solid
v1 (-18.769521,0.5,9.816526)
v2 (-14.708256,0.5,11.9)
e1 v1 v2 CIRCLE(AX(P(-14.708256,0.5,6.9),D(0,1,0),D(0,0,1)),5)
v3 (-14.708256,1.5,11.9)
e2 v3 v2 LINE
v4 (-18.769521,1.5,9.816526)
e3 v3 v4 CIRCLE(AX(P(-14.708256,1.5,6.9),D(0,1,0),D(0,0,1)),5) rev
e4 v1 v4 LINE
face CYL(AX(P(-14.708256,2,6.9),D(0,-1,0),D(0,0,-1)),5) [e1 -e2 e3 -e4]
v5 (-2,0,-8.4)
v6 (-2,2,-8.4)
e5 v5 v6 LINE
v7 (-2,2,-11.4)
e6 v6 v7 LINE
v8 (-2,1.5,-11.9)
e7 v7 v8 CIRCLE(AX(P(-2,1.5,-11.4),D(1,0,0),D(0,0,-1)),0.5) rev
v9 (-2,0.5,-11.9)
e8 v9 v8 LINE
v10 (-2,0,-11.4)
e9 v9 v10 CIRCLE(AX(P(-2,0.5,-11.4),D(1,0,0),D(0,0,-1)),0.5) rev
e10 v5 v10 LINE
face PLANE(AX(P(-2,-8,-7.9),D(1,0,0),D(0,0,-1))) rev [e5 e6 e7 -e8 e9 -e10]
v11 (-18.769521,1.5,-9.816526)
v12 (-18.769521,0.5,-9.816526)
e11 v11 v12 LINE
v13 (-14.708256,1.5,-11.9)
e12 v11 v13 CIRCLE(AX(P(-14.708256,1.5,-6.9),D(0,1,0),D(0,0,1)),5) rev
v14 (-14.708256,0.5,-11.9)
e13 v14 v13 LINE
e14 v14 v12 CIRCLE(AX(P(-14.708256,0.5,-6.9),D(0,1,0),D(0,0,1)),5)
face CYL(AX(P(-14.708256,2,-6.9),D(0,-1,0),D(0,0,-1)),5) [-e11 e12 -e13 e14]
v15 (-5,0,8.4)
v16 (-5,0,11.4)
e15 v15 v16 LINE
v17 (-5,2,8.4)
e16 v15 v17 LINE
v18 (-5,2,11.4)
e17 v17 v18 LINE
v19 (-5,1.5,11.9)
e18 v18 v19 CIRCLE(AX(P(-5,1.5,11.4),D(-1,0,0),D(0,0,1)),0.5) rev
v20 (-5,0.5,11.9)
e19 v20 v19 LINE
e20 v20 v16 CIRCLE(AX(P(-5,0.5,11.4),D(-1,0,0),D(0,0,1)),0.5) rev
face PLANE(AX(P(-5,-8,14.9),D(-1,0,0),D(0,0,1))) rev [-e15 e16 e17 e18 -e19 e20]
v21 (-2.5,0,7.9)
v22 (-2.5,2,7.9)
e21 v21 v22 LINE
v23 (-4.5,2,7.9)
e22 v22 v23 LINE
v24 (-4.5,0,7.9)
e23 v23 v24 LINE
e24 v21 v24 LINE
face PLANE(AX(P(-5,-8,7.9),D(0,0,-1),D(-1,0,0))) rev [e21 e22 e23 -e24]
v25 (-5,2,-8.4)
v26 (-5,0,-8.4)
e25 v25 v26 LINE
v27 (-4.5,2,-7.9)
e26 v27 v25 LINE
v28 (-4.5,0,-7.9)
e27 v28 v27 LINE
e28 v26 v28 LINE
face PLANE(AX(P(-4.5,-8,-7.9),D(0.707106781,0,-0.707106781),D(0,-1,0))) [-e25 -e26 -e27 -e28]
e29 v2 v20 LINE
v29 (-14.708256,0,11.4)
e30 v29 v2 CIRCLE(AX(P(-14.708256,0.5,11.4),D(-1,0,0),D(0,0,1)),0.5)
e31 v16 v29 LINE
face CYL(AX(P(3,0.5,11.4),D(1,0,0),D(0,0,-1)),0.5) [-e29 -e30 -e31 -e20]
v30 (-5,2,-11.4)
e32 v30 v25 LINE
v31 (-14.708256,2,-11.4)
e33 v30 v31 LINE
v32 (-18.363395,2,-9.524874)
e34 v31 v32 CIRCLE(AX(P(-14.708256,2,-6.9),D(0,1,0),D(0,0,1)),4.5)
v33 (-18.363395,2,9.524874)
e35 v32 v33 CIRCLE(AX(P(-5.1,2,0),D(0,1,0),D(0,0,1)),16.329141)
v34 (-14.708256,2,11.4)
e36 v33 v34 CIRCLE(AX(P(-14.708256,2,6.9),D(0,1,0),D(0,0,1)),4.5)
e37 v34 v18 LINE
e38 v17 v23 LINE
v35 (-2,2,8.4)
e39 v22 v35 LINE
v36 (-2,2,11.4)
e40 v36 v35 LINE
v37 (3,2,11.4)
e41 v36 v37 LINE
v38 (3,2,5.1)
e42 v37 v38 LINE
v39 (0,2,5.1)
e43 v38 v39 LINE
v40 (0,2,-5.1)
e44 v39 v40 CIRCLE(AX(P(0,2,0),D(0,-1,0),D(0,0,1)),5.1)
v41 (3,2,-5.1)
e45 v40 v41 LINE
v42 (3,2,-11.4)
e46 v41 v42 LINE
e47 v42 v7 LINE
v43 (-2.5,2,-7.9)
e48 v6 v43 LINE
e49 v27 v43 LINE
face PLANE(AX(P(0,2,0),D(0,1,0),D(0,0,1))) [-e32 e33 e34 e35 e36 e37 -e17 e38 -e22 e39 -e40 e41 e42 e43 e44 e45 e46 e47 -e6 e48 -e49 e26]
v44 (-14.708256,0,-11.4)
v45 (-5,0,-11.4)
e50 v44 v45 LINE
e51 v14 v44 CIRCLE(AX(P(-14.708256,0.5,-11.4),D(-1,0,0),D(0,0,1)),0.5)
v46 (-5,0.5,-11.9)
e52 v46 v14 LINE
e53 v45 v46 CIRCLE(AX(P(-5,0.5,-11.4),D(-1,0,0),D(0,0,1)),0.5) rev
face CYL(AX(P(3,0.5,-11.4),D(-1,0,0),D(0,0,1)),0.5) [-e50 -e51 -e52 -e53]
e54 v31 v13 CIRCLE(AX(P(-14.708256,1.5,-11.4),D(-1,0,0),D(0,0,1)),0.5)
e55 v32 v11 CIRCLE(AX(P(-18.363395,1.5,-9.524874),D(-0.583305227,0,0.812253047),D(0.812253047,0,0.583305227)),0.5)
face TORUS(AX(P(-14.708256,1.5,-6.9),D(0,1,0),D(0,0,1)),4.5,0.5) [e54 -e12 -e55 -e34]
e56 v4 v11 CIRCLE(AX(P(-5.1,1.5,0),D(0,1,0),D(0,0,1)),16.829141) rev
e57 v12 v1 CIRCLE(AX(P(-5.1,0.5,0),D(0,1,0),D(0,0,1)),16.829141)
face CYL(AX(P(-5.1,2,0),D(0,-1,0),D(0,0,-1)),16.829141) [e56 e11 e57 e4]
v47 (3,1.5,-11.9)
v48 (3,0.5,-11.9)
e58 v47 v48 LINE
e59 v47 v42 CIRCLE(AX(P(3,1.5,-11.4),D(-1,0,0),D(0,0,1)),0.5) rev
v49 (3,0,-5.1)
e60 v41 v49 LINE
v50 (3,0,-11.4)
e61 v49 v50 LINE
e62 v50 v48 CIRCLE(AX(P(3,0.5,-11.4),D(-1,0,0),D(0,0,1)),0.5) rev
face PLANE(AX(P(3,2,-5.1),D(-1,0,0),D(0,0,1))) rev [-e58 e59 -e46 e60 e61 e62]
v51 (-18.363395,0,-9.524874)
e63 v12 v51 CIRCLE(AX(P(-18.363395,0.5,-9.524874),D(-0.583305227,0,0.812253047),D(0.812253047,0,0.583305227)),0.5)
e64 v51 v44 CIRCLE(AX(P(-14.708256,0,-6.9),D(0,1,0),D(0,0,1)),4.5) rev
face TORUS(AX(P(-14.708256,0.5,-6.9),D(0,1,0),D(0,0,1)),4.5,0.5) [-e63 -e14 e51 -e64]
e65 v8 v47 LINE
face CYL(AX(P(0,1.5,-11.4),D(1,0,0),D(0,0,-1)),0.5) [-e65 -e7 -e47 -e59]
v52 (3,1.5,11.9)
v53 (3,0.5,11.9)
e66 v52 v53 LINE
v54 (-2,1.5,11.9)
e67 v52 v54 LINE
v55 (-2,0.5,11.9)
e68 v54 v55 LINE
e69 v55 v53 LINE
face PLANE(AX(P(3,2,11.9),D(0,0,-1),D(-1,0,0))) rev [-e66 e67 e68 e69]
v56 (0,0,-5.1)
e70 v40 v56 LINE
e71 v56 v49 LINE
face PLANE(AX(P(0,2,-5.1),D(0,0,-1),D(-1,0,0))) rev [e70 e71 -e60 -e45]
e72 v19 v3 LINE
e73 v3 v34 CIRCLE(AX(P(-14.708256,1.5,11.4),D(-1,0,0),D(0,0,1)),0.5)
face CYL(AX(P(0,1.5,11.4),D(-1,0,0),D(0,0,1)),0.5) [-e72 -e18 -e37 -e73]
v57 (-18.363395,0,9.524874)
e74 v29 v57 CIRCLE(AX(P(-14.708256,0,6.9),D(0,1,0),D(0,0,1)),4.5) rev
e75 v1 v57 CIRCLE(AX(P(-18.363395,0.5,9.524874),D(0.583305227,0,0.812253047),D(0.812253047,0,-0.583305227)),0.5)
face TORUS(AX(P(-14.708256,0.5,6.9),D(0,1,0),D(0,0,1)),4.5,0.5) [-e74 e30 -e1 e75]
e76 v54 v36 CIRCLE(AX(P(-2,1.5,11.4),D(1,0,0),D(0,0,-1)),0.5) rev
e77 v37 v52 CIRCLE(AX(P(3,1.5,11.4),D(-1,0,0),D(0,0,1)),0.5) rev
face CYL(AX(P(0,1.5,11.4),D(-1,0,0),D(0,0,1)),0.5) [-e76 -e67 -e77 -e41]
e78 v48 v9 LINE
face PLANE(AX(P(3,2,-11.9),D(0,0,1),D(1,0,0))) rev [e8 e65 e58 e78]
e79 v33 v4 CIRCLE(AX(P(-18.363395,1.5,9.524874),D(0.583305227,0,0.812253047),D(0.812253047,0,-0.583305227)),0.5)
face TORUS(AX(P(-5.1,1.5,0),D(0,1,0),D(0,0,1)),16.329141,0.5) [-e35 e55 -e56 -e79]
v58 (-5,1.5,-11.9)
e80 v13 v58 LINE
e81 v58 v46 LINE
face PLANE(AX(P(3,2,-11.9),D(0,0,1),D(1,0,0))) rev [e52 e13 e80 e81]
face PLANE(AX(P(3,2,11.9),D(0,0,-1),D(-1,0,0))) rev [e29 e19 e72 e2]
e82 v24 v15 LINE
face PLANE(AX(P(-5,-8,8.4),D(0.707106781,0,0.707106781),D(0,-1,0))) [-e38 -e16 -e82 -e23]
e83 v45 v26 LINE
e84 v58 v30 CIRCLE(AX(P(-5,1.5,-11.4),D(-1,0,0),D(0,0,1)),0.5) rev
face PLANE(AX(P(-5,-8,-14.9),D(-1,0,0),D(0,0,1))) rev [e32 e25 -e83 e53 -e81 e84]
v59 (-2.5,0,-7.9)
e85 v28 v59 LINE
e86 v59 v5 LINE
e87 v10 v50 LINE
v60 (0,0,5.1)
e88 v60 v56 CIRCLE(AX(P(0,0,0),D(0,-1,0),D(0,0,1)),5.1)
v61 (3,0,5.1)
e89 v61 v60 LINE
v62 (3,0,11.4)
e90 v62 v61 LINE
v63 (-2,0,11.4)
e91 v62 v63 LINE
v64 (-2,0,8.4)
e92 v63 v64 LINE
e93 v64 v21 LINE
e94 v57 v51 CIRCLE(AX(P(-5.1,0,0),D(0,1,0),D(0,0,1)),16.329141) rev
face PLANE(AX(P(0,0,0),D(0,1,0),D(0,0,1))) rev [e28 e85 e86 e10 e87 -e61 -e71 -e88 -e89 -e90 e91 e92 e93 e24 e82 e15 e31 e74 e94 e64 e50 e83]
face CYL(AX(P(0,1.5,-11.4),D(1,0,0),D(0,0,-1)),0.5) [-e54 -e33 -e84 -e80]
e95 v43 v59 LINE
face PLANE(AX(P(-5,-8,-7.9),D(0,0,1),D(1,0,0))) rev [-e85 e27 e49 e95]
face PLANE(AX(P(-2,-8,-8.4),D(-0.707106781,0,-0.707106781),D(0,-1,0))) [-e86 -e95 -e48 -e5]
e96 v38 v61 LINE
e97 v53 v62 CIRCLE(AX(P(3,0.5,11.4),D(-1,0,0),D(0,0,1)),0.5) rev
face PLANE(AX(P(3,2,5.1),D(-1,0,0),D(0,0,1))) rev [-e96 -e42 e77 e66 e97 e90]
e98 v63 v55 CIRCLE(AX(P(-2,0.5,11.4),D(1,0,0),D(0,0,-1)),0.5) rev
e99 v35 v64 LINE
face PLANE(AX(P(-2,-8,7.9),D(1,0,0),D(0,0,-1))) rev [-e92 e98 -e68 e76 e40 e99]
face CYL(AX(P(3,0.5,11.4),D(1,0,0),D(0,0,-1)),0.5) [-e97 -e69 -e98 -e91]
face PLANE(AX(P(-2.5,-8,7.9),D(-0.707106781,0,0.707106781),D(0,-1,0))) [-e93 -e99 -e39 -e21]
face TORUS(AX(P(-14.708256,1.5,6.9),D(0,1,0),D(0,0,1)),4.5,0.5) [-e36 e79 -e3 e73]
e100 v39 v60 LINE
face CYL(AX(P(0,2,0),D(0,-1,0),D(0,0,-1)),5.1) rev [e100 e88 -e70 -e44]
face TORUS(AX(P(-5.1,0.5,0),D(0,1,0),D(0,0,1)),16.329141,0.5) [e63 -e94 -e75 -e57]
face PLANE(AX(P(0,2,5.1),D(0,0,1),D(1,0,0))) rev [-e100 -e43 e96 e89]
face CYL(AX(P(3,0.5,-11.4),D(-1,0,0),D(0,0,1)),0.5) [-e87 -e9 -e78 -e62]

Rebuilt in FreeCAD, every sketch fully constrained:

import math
import FreeCAD as App
import Part
import Sketcher

V = App.Vector


def edges_at(feature, points):
    """Names of the edges that pass closest to the given points."""
    edges = feature.Shape.Edges
    near = lambda p: min(range(len(edges)), key=lambda i: edges[i].distToShape(Part.Vertex(*p))[0])
    return sorted({f"Edge{near(p) + 1}" for p in points})

doc = App.newDocument("Part")
body = doc.addObject("PartDesign::Body", "Body")

# Sketch on XZ plane
sketch1 = doc.addObject("Sketcher::SketchObject", "Sketch")
body.addObject(sketch1)
sketch1.AttachmentSupport = (doc.XZ_Plane, [""])
sketch1.MapMode = "FlatFace"
sketch1.addGeometry([
    Part.LineSegment(V(0, -5.1, 0), V(3, -5.1, 0)),  # 0
    Part.LineSegment(V(3, -5.1, 0), V(3, -11.9, 0)),  # 1
    Part.LineSegment(V(3, -11.9, 0), V(-17, -11.9, 0)),  # 2
    Part.ArcOfCircle(Part.Circle(V(-5.1, 0, 0), V(0, 0, 1), 16.829141), math.radians(135), math.radians(225)),  # 3
    Part.LineSegment(V(-17, 11.9, 0), V(3, 11.9, 0)),  # 4
    Part.LineSegment(V(3, 11.9, 0), V(3, 5.1, 0)),  # 5
    Part.LineSegment(V(3, 5.1, 0), V(0, 5.1, 0)),  # 6
    Part.ArcOfCircle(Part.Circle(V(0, 0, 0), V(0, 0, 1), 5.1), math.radians(90), math.radians(270)),  # 7
], False)
sketch1.addConstraint([
    Sketcher.Constraint("Coincident", 0, 2, 1, 1),
    Sketcher.Constraint("Coincident", 1, 2, 2, 1),
    Sketcher.Constraint("Coincident", 2, 2, 3, 2),
    Sketcher.Constraint("Coincident", 3, 1, 4, 1),
    Sketcher.Constraint("Coincident", 4, 2, 5, 1),
    Sketcher.Constraint("Coincident", 5, 2, 6, 1),
    Sketcher.Constraint("Tangent", 6, 2, 7, 1),
    Sketcher.Constraint("Tangent", 7, 2, 0, 1),
    Sketcher.Constraint("Horizontal", 0),
    Sketcher.Constraint("Vertical", 1),
    Sketcher.Constraint("Horizontal", 2),
    Sketcher.Constraint("Horizontal", 4),
    Sketcher.Constraint("Vertical", 5),
    Sketcher.Constraint("Horizontal", 6),
    Sketcher.Constraint("Coincident", 7, 3, -1, 1),
    Sketcher.Constraint("Symmetric", 2, 2, 3, 1, -1),
    Sketcher.Constraint("Vertical", 1, 2, 4, 2),
    Sketcher.Constraint("Radius", 7, 5.1),
    Sketcher.Constraint("DistanceX", 0, 1, 0, 2, 3.0),
    Sketcher.Constraint("DistanceX", 2, 2, 2, 1, 20.0),
    Sketcher.Constraint("DistanceY", 1, 2, 1, 1, 6.8),
    Sketcher.Constraint("DistanceX", 3, 3, -1, 1, 5.1),
])
pad1 = doc.addObject("PartDesign::Pad", "Pad")
body.addObject(pad1)
pad1.Profile = sketch1
pad1.Length = 2
pad1.Reversed = True
doc.recompute()

fillet = doc.addObject("PartDesign::Fillet", "Fillet")
body.addObject(fillet)
fillet.Base = (pad1, edges_at(pad1, [(-17, 1, 11.9), (-17, 1, -11.9)]))
fillet.Radius = 5
doc.recompute()

fillet2 = doc.addObject("PartDesign::Fillet", "Fillet001")
body.addObject(fillet2)
fillet2.Base = (fillet, edges_at(fillet, [
    (-5.854, 2, -11.9),
    (-5.854, 0, 11.9),
    (-5.854, 2, 11.9),
    (-21.929, 0, 0),
    (-16.991, 0, -11.349),
    (-16.991, 0, 11.349),
    (-21.929, 2, 0),
    (-16.991, 2, -11.349),
    (-16.991, 2, 11.349),
    (-5.854, 0, -11.9),
]))
fillet2.Radius = 0.5

# Sketch on XZ plane
sketch2 = doc.addObject("Sketcher::SketchObject", "Sketch001")
body.addObject(sketch2)
sketch2.AttachmentSupport = (doc.XZ_Plane, [""])
sketch2.MapMode = "FlatFace"
sketch2.AttachmentOffset = App.Placement(V(0, 0, -2), App.Rotation())
sketch2.addGeometry([
    Part.LineSegment(V(-5, -14.9, 0), V(-5, -7.9, 0)),  # 0
    Part.LineSegment(V(-5, -7.9, 0), V(-2, -7.9, 0)),  # 1
    Part.LineSegment(V(-2, -7.9, 0), V(-2, -14.9, 0)),  # 2
    Part.LineSegment(V(-2, -14.9, 0), V(-5, -14.9, 0)),  # 3
    Part.LineSegment(V(-5, 7.9, 0), V(-5, 14.9, 0)),  # 4
    Part.LineSegment(V(-5, 14.9, 0), V(-2, 14.9, 0)),  # 5
    Part.LineSegment(V(-2, 14.9, 0), V(-2, 7.9, 0)),  # 6
    Part.LineSegment(V(-2, 7.9, 0), V(-5, 7.9, 0)),  # 7
], False)
sketch2.addConstraint([
    Sketcher.Constraint("Coincident", 0, 2, 1, 1),
    Sketcher.Constraint("Coincident", 1, 2, 2, 1),
    Sketcher.Constraint("Coincident", 2, 2, 3, 1),
    Sketcher.Constraint("Coincident", 3, 2, 0, 1),
    Sketcher.Constraint("Coincident", 4, 2, 5, 1),
    Sketcher.Constraint("Coincident", 5, 2, 6, 1),
    Sketcher.Constraint("Coincident", 6, 2, 7, 1),
    Sketcher.Constraint("Coincident", 7, 2, 4, 1),
    Sketcher.Constraint("Vertical", 0),
    Sketcher.Constraint("Horizontal", 1),
    Sketcher.Constraint("Vertical", 2),
    Sketcher.Constraint("Horizontal", 3),
    Sketcher.Constraint("Vertical", 4),
    Sketcher.Constraint("Horizontal", 5),
    Sketcher.Constraint("Vertical", 6),
    Sketcher.Constraint("Horizontal", 7),
    Sketcher.Constraint("Symmetric", 3, 2, 4, 2, -1),
    Sketcher.Constraint("Symmetric", 1, 2, 6, 2, -1),
    Sketcher.Constraint("DistanceX", 1, 1, 1, 2, 3.0),
    Sketcher.Constraint("DistanceY", 0, 1, 0, 2, 7.0),
    Sketcher.Constraint("DistanceX", 0, 2, -1, 1, 5.0),
    Sketcher.Constraint("DistanceY", 0, 2, -1, 1, 7.9),
])
pocket1 = doc.addObject("PartDesign::Pocket", "Pocket")
body.addObject(pocket1)
pocket1.Profile = sketch2
pocket1.Length = 10
pocket1.Reversed = True
doc.recompute()

chamfer = doc.addObject("PartDesign::Chamfer", "Chamfer")
body.addObject(chamfer)
chamfer.Base = (pocket1, edges_at(pocket1, [
    (-2, 1, -7.9),
    (-5, 1, -7.9),
    (-5, 1, 7.9),
    (-2, 1, 7.9),
]))
chamfer.Size = 0.5

doc.recompute()
